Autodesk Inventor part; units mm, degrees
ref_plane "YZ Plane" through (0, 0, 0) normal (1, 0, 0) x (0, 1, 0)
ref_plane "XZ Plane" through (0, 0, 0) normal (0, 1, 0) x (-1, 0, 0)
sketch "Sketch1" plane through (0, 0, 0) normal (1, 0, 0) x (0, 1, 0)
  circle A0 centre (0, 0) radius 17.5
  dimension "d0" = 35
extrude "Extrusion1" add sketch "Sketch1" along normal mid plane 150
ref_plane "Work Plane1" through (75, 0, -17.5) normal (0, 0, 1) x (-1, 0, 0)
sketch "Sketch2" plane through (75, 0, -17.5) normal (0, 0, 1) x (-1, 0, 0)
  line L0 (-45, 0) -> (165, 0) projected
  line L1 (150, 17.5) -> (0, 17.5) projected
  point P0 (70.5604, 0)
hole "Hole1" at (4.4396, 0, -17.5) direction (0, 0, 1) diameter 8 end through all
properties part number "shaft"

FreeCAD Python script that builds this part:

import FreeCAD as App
import Part
import Sketcher

V = App.Vector
Q = App.Units.Quantity

doc = App.newDocument("Part")
params = doc.addObject("Spreadsheet::Sheet", "Params")
for row, (alias, value) in enumerate([
    ("sketch1_diameter", "35 mm"),
    ("pad1_length", "150 mm"),
    ("sketch2_diameter", "8 mm"),
    ("hole_diameter", "8 mm"),
], start=1):
    params.set(f"A{row}", alias)
    params.set(f"B{row}", "=" + value)
    params.setAlias(f"B{row}", alias)

body = doc.addObject("PartDesign::Body", "Body")

sketch1 = doc.addObject("Sketcher::SketchObject", "Sketch")
body.addObject(sketch1)
sketch1.AttachmentSupport = (doc.YZ_Plane, [""])
sketch1.MapMode = "FlatFace"
sketch1.addGeometry(Part.Circle(V(0, 0, 0), V(0, 0, 1), 18), False)
sketch1.addConstraint(Sketcher.Constraint("Coincident", 0, 3, -1, 1))
sketch1.addConstraint(Sketcher.Constraint("Diameter", 0, Q("35 mm")))
sketch1.setExpression("Constraints[1]", "Params.sketch1_diameter")
pad1 = doc.addObject("PartDesign::Pad", "Pad")
body.addObject(pad1)
pad1.Profile = sketch1
pad1.setExpression("Length", "Params.pad1_length")
pad1.Midplane = True

sketch2 = doc.addObject("Sketcher::SketchObject", "Sketch001")
body.addObject(sketch2)
sketch2.AttachmentSupport = (doc.XY_Plane, [""])
sketch2.MapMode = "FlatFace"
sketch2.AttachmentOffset = App.Placement(V(0, 0, -17.5), App.Rotation())
sketch2.addGeometry(Part.Circle(V(4.4, 0, 0), V(0, 0, 1), 4), False)
sketch2.addConstraint(Sketcher.Constraint("PointOnObject", 0, 3, -1))
sketch2.addConstraint(Sketcher.Constraint("Diameter", 0, Q("8 mm")))
sketch2.addConstraint(Sketcher.Constraint("DistanceX", -1, 1, 0, 3, Q("4.4396 mm")))
sketch2.setExpression("Constraints[1]", "Params.sketch2_diameter")
doc.recompute()
hole = doc.addObject("PartDesign::Hole", "Hole")
body.addObject(hole)
hole.Profile = sketch2
hole.ThreadType = "None"
hole.setExpression("Diameter", "Params.hole_diameter")
hole.DepthType = "ThroughAll"
hole.Reversed = True

doc.recompute()
